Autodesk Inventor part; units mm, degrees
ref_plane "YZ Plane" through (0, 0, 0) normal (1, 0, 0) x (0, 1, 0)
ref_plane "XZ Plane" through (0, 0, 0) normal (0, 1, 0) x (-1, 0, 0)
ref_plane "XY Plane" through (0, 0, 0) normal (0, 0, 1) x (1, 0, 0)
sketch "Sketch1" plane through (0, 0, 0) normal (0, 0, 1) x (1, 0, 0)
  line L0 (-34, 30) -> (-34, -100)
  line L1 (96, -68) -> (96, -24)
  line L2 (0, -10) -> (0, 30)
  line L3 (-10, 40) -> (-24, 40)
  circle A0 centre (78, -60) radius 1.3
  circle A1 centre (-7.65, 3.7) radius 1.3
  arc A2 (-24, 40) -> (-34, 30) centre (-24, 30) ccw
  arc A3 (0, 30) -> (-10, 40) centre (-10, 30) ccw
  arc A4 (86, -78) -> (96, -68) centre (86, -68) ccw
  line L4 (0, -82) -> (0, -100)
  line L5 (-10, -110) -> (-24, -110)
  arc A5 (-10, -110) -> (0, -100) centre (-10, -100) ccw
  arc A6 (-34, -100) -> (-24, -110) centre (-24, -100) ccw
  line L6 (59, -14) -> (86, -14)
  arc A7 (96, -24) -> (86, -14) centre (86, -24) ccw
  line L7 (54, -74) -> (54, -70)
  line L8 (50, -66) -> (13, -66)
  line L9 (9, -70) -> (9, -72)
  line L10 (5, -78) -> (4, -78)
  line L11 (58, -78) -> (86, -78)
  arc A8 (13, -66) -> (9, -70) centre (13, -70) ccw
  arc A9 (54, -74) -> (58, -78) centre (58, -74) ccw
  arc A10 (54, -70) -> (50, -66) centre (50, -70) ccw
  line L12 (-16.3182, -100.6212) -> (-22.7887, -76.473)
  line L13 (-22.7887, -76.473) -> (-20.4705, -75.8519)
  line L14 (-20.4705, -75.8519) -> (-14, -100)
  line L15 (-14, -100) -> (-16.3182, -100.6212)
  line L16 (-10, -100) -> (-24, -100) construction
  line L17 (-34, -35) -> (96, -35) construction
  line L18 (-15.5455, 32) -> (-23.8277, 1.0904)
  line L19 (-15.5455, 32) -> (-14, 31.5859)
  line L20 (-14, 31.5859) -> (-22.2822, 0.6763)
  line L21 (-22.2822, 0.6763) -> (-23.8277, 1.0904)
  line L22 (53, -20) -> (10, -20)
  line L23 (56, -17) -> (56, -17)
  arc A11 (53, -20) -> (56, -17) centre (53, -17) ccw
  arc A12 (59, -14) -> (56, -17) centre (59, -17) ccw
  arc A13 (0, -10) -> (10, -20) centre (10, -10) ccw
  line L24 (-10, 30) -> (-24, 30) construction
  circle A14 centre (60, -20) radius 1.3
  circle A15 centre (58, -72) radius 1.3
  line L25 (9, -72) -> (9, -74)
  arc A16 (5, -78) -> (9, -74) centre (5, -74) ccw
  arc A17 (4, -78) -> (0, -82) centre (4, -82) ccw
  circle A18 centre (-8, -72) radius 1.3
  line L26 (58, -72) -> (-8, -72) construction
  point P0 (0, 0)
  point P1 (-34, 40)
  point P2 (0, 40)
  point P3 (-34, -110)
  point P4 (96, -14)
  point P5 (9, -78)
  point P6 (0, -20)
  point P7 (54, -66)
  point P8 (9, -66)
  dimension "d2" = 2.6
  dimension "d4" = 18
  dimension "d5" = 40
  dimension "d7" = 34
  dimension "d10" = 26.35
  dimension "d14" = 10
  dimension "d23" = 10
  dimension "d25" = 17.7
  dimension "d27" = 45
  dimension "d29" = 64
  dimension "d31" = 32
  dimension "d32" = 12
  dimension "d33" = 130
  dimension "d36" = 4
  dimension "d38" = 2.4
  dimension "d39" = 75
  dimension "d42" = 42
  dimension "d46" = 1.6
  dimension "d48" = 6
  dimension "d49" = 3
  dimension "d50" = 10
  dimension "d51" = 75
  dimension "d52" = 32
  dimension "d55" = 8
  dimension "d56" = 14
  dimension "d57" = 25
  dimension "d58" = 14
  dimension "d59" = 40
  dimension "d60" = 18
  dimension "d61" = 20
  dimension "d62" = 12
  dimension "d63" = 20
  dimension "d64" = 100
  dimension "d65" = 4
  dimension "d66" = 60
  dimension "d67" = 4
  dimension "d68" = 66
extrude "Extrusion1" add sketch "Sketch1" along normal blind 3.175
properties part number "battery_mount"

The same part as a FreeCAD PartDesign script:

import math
import FreeCAD as App
import Part
import Sketcher

V = App.Vector
Q = App.Units.Quantity


def add_polygon(sketch, points):
    """Adds a closed chain of lines whose ends are joined by coincident constraints."""
    first, n = sketch.GeometryCount, len(points)
    for a, b in zip(points, points[1:] + points[:1]):
        sketch.addGeometry(Part.LineSegment(App.Vector(*a, 0), App.Vector(*b, 0)), False)
    for i in range(n):
        sketch.addConstraint(Sketcher.Constraint("Coincident", first + i, 2, first + (i + 1) % n, 1))

doc = App.newDocument("Part")
body = doc.addObject("PartDesign::Body", "Body")

sketch1 = doc.addObject("Sketcher::SketchObject", "Sketch")
body.addObject(sketch1)
sketch1.AttachmentSupport = (doc.XY_Plane, [""])
sketch1.MapMode = "FlatFace"
sketch1.addGeometry(Part.ArcOfCircle(Part.Circle(V(-24, 30, 0), V(0, 0, 1), 10), math.radians(90), math.radians(180)), False)
sketch1.addGeometry(Part.LineSegment(V(-34, 30, 0), V(-34, -100, 0)), False)
sketch1.addGeometry(Part.ArcOfCircle(Part.Circle(V(-24, -100, 0), V(0, 0, 1), 10), math.radians(180), math.radians(270)), False)
sketch1.addGeometry(Part.LineSegment(V(-24, -110, 0), V(-10, -110, 0)), False)
sketch1.addGeometry(Part.ArcOfCircle(Part.Circle(V(-10, -100, 0), V(0, 0, 1), 10), math.radians(-90), math.radians(0)), False)
sketch1.addGeometry(Part.LineSegment(V(0, -100, 0), V(0, -82, 0)), False)
sketch1.addGeometry(Part.ArcOfCircle(Part.Circle(V(4, -82, 0), V(0, 0, 1), 4), math.radians(90), math.radians(180)), False)
sketch1.addGeometry(Part.LineSegment(V(4, -78, 0), V(5, -78, 0)), False)
sketch1.addGeometry(Part.ArcOfCircle(Part.Circle(V(5, -74, 0), V(0, 0, 1), 4), math.radians(-90), math.radians(0)), False)
sketch1.addGeometry(Part.LineSegment(V(9, -74, 0), V(9, -70, 0)), False)
sketch1.addGeometry(Part.ArcOfCircle(Part.Circle(V(13, -70, 0), V(0, 0, 1), 4), math.radians(90), math.radians(180)), False)
sketch1.addGeometry(Part.LineSegment(V(13, -66, 0), V(50, -66, 0)), False)
sketch1.addGeometry(Part.ArcOfCircle(Part.Circle(V(50, -70, 0), V(0, 0, 1), 4), math.radians(0), math.radians(90)), False)
sketch1.addGeometry(Part.LineSegment(V(54, -70, 0), V(54, -74, 0)), False)
sketch1.addGeometry(Part.ArcOfCircle(Part.Circle(V(58, -74, 0), V(0, 0, 1), 4), math.radians(180), math.radians(270)), False)
sketch1.addGeometry(Part.LineSegment(V(58, -78, 0), V(86, -78, 0)), False)
sketch1.addGeometry(Part.ArcOfCircle(Part.Circle(V(86, -68, 0), V(0, 0, 1), 10), math.radians(-90), math.radians(0)), False)
sketch1.addGeometry(Part.LineSegment(V(96, -68, 0), V(96, -24, 0)), False)
sketch1.addGeometry(Part.ArcOfCircle(Part.Circle(V(86, -24, 0), V(0, 0, 1), 10), math.radians(0), math.radians(90)), False)
sketch1.addGeometry(Part.LineSegment(V(86, -14, 0), V(59, -14, 0)), False)
sketch1.addGeometry(Part.ArcOfCircle(Part.Circle(V(59, -17, 0), V(0, 0, 1), 3), math.radians(90), math.radians(180)), False)
sketch1.addGeometry(Part.ArcOfCircle(Part.Circle(V(53, -17, 0), V(0, 0, 1), 3), math.radians(-90), math.radians(0)), False)
sketch1.addGeometry(Part.LineSegment(V(53, -20, 0), V(10, -20, 0)), False)
sketch1.addGeometry(Part.ArcOfCircle(Part.Circle(V(10, -10, 0), V(0, 0, 1), 10), math.radians(180), math.radians(270)), False)
sketch1.addGeometry(Part.LineSegment(V(0, -10, 0), V(0, 30, 0)), False)
sketch1.addGeometry(Part.ArcOfCircle(Part.Circle(V(-10, 30, 0), V(0, 0, 1), 10), math.radians(0), math.radians(90)), False)
sketch1.addGeometry(Part.LineSegment(V(-10, 40, 0), V(-24, 40, 0)), False)
add_polygon(sketch1, [(-14, -100), (-16.3182, -100.6212), (-22.7887, -76.473), (-20.4705, -75.8519)])
sketch1.addGeometry(Part.Circle(V(-8, -72, 0), V(0, 0, 1), 1.3), False)
sketch1.addGeometry(Part.Circle(V(58, -72, 0), V(0, 0, 1), 1.3), False)
sketch1.addGeometry(Part.Circle(V(78, -60, 0), V(0, 0, 1), 1.3), False)
add_polygon(sketch1, [(-23.8277, 1.0904), (-15.5455, 32), (-14, 31.5859), (-22.2822, 0.6763)])
sketch1.addGeometry(Part.Circle(V(-7.65, 3.7, 0), V(0, 0, 1), 1.3), False)
sketch1.addGeometry(Part.Circle(V(60, -20, 0), V(0, 0, 1), 1.3), False)
sketch1.addConstraint(Sketcher.Constraint("Tangent", 0, 2, 1, 1))
sketch1.addConstraint(Sketcher.Constraint("Tangent", 1, 2, 2, 1))
sketch1.addConstraint(Sketcher.Constraint("Tangent", 2, 2, 3, 1))
sketch1.addConstraint(Sketcher.Constraint("Tangent", 3, 2, 4, 1))
sketch1.addConstraint(Sketcher.Constraint("Tangent", 4, 2, 5, 1))
sketch1.addConstraint(Sketcher.Constraint("Tangent", 5, 2, 6, 2))
sketch1.addConstraint(Sketcher.Constraint("Tangent", 6, 1, 7, 1))
sketch1.addConstraint(Sketcher.Constraint("Tangent", 7, 2, 8, 1))
sketch1.addConstraint(Sketcher.Constraint("Tangent", 8, 2, 9, 1))
sketch1.addConstraint(Sketcher.Constraint("Tangent", 9, 2, 10, 2))
sketch1.addConstraint(Sketcher.Constraint("Tangent", 10, 1, 11, 1))
sketch1.addConstraint(Sketcher.Constraint("Tangent", 11, 2, 12, 2))
sketch1.addConstraint(Sketcher.Constraint("Tangent", 12, 1, 13, 1))
sketch1.addConstraint(Sketcher.Constraint("Tangent", 13, 2, 14, 1))
sketch1.addConstraint(Sketcher.Constraint("Tangent", 14, 2, 15, 1))
sketch1.addConstraint(Sketcher.Constraint("Tangent", 15, 2, 16, 1))
sketch1.addConstraint(Sketcher.Constraint("Tangent", 16, 2, 17, 1))
sketch1.addConstraint(Sketcher.Constraint("Tangent", 17, 2, 18, 1))
sketch1.addConstraint(Sketcher.Constraint("Tangent", 18, 2, 19, 1))
sketch1.addConstraint(Sketcher.Constraint("Tangent", 19, 2, 20, 1))
sketch1.addConstraint(Sketcher.Constraint("Tangent", 20, 2, 21, 2))
sketch1.addConstraint(Sketcher.Constraint("Tangent", 21, 1, 22, 1))
sketch1.addConstraint(Sketcher.Constraint("Tangent", 22, 2, 23, 2))
sketch1.addConstraint(Sketcher.Constraint("Tangent", 23, 1, 24, 1))
sketch1.addConstraint(Sketcher.Constraint("Tangent", 24, 2, 25, 1))
sketch1.addConstraint(Sketcher.Constraint("Tangent", 25, 2, 26, 1))
sketch1.addConstraint(Sketcher.Constraint("Tangent", 26, 2, 0, 1))
sketch1.addConstraint(Sketcher.Constraint("Vertical", 1))
sketch1.addConstraint(Sketcher.Constraint("Horizontal", 3))
sketch1.addConstraint(Sketcher.Constraint("Vertical", 5))
sketch1.addConstraint(Sketcher.Constraint("Horizontal", 7))
sketch1.addConstraint(Sketcher.Constraint("Vertical", 9))
sketch1.addConstraint(Sketcher.Constraint("Horizontal", 11))
sketch1.addConstraint(Sketcher.Constraint("Vertical", 13))
sketch1.addConstraint(Sketcher.Constraint("Horizontal", 15))
sketch1.addConstraint(Sketcher.Constraint("Vertical", 17))
sketch1.addConstraint(Sketcher.Constraint("Horizontal", 19))
sketch1.addConstraint(Sketcher.Constraint("Horizontal", 22))
sketch1.addConstraint(Sketcher.Constraint("Vertical", 24))
sketch1.addConstraint(Sketcher.Constraint("Horizontal", 26))
sketch1.addConstraint(Sketcher.Constraint("Equal", 0, 2))
sketch1.addConstraint(Sketcher.Constraint("Equal", 2, 4))
sketch1.addConstraint(Sketcher.Constraint("Equal", 6, 8))
sketch1.addConstraint(Sketcher.Constraint("Equal", 8, 10))
sketch1.addConstraint(Sketcher.Constraint("Equal", 10, 12))
sketch1.addConstraint(Sketcher.Constraint("Equal", 12, 14))
sketch1.addConstraint(Sketcher.Constraint("Equal", 4, 16))
sketch1.addConstraint(Sketcher.Constraint("Equal", 16, 18))
sketch1.addConstraint(Sketcher.Constraint("Equal", 20, 21))
sketch1.addConstraint(Sketcher.Constraint("Equal", 18, 23))
sketch1.addConstraint(Sketcher.Constraint("Equal", 23, 25))
sketch1.addConstraint(Sketcher.Constraint("Equal", 31, 32))
sketch1.addConstraint(Sketcher.Constraint("Equal", 32, 33))
sketch1.addConstraint(Sketcher.Constraint("Equal", 33, 38))
sketch1.addConstraint(Sketcher.Constraint("Equal", 38, 39))
sketch1.addConstraint(Sketcher.Constraint("PointOnObject", 4, 2, -2))
sketch1.addConstraint(Sketcher.Constraint("PointOnObject", 23, 1, -2))
sketch1.addConstraint(Sketcher.Constraint("Perpendicular", 27, 28))
sketch1.addConstraint(Sketcher.Constraint("Perpendicular", 28, 29))
sketch1.addConstraint(Sketcher.Constraint("Perpendicular", 29, 30))
sketch1.addConstraint(Sketcher.Constraint("Perpendicular", 34, 35))
sketch1.addConstraint(Sketcher.Constraint("Perpendicular", 35, 36))
sketch1.addConstraint(Sketcher.Constraint("Perpendicular", 36, 37))
sketch1.addConstraint(Sketcher.Constraint("Horizontal", 8, 3, 14, 3))
sketch1.addConstraint(Sketcher.Constraint("Horizontal", 20, 3, 21, 3))
sketch1.addConstraint(Sketcher.Constraint("Horizontal", 31, 3, 32, 3))
sketch1.addConstraint(Sketcher.Constraint("Horizontal", 39, 3, 21, 1))
sketch1.addConstraint(Sketcher.Constraint("Horizontal", 4, 2, 30, 2))
sketch1.addConstraint(Sketcher.Constraint("Vertical", 14, 3, 32, 3))
sketch1.addConstraint(Sketcher.Constraint("Vertical", 30, 2, 35, 2))
sketch1.addConstraint(Sketcher.Constraint("Radius", 0, 10.0))
sketch1.addConstraint(Sketcher.Constraint("Radius", 6, 4.0))
sketch1.addConstraint(Sketcher.Constraint("Radius", 20, 3.0))
sketch1.addConstraint(Sketcher.Constraint("Diameter", 31, 2.6))
sketch1.addConstraint(Sketcher.Constraint("DistanceX", 3, 1, 3, 2, 14.0))
sketch1.addConstraint(Sketcher.Constraint("DistanceY", 1, 2, 1, 1, 130.0))
sketch1.addConstraint(Sketcher.Constraint("DistanceY", 5, 1, 5, 2, 18.0))
sketch1.addConstraint(Sketcher.Constraint("DistanceY", 9, 1, 9, 2, 4.0))
sketch1.addConstraint(Sketcher.Constraint("DistanceY", 24, 1, 24, 2, 40.0))
sketch1.addConstraint(Sketcher.Constraint("Angle", 30, Q("-75 deg")))
sketch1.addConstraint(Sketcher.Constraint("Angle", 34, Q("75 deg")))
sketch1.addConstraint(Sketcher.Constraint("Distance", 28, 25.0))
sketch1.addConstraint(Sketcher.Constraint("Distance", 34, 32.0))
sketch1.addConstraint(Sketcher.Constraint("DistanceY", 2, 3, -1, 1, 100.0))
sketch1.addConstraint(Sketcher.Constraint("DistanceX", 31, 3, -1, 1, 8.0))
sketch1.addConstraint(Sketcher.Constraint("DistanceY", 33, 3, -1, 1, 60.0))
sketch1.addConstraint(Sketcher.Constraint("DistanceX", -1, 1, 39, 3, 60.0))
sketch1.addConstraint(Sketcher.Constraint("DistanceX", 30, 2, -1, 1, 14.0))
sketch1.addConstraint(Sketcher.Constraint("DistanceY", -1, 1, 34, 2, 32.0))
sketch1.addConstraint(Sketcher.Constraint("DistanceX", 8, 3, 12, 3, 45.0))
sketch1.addConstraint(Sketcher.Constraint("DistanceX", 4, 3, 12, 3, 60.0))
sketch1.addConstraint(Sketcher.Constraint("DistanceX", 12, 3, 21, 3, 3.0))
sketch1.addConstraint(Sketcher.Constraint("DistanceY", 6, 3, 31, 3, 10.0))
sketch1.addConstraint(Sketcher.Constraint("DistanceX", 33, 3, 16, 3, 8.0))
sketch1.addConstraint(Sketcher.Constraint("DistanceX", 32, 3, 33, 3, 20.0))
sketch1.addConstraint(Sketcher.Constraint("Distance", 27, 2.4))
sketch1.addConstraint(Sketcher.Constraint("Distance", 35, 1.6))
sketch1.addConstraint(Sketcher.Constraint("DistanceX", 0, 2, 38, 3, 26.35))
sketch1.addConstraint(Sketcher.Constraint("DistanceY", -1, 1, 38, 3, 3.7))
pad1 = doc.addObject("PartDesign::Pad", "Pad")
body.addObject(pad1)
pad1.Profile = sketch1
pad1.Length = 3.175

doc.recompute()
